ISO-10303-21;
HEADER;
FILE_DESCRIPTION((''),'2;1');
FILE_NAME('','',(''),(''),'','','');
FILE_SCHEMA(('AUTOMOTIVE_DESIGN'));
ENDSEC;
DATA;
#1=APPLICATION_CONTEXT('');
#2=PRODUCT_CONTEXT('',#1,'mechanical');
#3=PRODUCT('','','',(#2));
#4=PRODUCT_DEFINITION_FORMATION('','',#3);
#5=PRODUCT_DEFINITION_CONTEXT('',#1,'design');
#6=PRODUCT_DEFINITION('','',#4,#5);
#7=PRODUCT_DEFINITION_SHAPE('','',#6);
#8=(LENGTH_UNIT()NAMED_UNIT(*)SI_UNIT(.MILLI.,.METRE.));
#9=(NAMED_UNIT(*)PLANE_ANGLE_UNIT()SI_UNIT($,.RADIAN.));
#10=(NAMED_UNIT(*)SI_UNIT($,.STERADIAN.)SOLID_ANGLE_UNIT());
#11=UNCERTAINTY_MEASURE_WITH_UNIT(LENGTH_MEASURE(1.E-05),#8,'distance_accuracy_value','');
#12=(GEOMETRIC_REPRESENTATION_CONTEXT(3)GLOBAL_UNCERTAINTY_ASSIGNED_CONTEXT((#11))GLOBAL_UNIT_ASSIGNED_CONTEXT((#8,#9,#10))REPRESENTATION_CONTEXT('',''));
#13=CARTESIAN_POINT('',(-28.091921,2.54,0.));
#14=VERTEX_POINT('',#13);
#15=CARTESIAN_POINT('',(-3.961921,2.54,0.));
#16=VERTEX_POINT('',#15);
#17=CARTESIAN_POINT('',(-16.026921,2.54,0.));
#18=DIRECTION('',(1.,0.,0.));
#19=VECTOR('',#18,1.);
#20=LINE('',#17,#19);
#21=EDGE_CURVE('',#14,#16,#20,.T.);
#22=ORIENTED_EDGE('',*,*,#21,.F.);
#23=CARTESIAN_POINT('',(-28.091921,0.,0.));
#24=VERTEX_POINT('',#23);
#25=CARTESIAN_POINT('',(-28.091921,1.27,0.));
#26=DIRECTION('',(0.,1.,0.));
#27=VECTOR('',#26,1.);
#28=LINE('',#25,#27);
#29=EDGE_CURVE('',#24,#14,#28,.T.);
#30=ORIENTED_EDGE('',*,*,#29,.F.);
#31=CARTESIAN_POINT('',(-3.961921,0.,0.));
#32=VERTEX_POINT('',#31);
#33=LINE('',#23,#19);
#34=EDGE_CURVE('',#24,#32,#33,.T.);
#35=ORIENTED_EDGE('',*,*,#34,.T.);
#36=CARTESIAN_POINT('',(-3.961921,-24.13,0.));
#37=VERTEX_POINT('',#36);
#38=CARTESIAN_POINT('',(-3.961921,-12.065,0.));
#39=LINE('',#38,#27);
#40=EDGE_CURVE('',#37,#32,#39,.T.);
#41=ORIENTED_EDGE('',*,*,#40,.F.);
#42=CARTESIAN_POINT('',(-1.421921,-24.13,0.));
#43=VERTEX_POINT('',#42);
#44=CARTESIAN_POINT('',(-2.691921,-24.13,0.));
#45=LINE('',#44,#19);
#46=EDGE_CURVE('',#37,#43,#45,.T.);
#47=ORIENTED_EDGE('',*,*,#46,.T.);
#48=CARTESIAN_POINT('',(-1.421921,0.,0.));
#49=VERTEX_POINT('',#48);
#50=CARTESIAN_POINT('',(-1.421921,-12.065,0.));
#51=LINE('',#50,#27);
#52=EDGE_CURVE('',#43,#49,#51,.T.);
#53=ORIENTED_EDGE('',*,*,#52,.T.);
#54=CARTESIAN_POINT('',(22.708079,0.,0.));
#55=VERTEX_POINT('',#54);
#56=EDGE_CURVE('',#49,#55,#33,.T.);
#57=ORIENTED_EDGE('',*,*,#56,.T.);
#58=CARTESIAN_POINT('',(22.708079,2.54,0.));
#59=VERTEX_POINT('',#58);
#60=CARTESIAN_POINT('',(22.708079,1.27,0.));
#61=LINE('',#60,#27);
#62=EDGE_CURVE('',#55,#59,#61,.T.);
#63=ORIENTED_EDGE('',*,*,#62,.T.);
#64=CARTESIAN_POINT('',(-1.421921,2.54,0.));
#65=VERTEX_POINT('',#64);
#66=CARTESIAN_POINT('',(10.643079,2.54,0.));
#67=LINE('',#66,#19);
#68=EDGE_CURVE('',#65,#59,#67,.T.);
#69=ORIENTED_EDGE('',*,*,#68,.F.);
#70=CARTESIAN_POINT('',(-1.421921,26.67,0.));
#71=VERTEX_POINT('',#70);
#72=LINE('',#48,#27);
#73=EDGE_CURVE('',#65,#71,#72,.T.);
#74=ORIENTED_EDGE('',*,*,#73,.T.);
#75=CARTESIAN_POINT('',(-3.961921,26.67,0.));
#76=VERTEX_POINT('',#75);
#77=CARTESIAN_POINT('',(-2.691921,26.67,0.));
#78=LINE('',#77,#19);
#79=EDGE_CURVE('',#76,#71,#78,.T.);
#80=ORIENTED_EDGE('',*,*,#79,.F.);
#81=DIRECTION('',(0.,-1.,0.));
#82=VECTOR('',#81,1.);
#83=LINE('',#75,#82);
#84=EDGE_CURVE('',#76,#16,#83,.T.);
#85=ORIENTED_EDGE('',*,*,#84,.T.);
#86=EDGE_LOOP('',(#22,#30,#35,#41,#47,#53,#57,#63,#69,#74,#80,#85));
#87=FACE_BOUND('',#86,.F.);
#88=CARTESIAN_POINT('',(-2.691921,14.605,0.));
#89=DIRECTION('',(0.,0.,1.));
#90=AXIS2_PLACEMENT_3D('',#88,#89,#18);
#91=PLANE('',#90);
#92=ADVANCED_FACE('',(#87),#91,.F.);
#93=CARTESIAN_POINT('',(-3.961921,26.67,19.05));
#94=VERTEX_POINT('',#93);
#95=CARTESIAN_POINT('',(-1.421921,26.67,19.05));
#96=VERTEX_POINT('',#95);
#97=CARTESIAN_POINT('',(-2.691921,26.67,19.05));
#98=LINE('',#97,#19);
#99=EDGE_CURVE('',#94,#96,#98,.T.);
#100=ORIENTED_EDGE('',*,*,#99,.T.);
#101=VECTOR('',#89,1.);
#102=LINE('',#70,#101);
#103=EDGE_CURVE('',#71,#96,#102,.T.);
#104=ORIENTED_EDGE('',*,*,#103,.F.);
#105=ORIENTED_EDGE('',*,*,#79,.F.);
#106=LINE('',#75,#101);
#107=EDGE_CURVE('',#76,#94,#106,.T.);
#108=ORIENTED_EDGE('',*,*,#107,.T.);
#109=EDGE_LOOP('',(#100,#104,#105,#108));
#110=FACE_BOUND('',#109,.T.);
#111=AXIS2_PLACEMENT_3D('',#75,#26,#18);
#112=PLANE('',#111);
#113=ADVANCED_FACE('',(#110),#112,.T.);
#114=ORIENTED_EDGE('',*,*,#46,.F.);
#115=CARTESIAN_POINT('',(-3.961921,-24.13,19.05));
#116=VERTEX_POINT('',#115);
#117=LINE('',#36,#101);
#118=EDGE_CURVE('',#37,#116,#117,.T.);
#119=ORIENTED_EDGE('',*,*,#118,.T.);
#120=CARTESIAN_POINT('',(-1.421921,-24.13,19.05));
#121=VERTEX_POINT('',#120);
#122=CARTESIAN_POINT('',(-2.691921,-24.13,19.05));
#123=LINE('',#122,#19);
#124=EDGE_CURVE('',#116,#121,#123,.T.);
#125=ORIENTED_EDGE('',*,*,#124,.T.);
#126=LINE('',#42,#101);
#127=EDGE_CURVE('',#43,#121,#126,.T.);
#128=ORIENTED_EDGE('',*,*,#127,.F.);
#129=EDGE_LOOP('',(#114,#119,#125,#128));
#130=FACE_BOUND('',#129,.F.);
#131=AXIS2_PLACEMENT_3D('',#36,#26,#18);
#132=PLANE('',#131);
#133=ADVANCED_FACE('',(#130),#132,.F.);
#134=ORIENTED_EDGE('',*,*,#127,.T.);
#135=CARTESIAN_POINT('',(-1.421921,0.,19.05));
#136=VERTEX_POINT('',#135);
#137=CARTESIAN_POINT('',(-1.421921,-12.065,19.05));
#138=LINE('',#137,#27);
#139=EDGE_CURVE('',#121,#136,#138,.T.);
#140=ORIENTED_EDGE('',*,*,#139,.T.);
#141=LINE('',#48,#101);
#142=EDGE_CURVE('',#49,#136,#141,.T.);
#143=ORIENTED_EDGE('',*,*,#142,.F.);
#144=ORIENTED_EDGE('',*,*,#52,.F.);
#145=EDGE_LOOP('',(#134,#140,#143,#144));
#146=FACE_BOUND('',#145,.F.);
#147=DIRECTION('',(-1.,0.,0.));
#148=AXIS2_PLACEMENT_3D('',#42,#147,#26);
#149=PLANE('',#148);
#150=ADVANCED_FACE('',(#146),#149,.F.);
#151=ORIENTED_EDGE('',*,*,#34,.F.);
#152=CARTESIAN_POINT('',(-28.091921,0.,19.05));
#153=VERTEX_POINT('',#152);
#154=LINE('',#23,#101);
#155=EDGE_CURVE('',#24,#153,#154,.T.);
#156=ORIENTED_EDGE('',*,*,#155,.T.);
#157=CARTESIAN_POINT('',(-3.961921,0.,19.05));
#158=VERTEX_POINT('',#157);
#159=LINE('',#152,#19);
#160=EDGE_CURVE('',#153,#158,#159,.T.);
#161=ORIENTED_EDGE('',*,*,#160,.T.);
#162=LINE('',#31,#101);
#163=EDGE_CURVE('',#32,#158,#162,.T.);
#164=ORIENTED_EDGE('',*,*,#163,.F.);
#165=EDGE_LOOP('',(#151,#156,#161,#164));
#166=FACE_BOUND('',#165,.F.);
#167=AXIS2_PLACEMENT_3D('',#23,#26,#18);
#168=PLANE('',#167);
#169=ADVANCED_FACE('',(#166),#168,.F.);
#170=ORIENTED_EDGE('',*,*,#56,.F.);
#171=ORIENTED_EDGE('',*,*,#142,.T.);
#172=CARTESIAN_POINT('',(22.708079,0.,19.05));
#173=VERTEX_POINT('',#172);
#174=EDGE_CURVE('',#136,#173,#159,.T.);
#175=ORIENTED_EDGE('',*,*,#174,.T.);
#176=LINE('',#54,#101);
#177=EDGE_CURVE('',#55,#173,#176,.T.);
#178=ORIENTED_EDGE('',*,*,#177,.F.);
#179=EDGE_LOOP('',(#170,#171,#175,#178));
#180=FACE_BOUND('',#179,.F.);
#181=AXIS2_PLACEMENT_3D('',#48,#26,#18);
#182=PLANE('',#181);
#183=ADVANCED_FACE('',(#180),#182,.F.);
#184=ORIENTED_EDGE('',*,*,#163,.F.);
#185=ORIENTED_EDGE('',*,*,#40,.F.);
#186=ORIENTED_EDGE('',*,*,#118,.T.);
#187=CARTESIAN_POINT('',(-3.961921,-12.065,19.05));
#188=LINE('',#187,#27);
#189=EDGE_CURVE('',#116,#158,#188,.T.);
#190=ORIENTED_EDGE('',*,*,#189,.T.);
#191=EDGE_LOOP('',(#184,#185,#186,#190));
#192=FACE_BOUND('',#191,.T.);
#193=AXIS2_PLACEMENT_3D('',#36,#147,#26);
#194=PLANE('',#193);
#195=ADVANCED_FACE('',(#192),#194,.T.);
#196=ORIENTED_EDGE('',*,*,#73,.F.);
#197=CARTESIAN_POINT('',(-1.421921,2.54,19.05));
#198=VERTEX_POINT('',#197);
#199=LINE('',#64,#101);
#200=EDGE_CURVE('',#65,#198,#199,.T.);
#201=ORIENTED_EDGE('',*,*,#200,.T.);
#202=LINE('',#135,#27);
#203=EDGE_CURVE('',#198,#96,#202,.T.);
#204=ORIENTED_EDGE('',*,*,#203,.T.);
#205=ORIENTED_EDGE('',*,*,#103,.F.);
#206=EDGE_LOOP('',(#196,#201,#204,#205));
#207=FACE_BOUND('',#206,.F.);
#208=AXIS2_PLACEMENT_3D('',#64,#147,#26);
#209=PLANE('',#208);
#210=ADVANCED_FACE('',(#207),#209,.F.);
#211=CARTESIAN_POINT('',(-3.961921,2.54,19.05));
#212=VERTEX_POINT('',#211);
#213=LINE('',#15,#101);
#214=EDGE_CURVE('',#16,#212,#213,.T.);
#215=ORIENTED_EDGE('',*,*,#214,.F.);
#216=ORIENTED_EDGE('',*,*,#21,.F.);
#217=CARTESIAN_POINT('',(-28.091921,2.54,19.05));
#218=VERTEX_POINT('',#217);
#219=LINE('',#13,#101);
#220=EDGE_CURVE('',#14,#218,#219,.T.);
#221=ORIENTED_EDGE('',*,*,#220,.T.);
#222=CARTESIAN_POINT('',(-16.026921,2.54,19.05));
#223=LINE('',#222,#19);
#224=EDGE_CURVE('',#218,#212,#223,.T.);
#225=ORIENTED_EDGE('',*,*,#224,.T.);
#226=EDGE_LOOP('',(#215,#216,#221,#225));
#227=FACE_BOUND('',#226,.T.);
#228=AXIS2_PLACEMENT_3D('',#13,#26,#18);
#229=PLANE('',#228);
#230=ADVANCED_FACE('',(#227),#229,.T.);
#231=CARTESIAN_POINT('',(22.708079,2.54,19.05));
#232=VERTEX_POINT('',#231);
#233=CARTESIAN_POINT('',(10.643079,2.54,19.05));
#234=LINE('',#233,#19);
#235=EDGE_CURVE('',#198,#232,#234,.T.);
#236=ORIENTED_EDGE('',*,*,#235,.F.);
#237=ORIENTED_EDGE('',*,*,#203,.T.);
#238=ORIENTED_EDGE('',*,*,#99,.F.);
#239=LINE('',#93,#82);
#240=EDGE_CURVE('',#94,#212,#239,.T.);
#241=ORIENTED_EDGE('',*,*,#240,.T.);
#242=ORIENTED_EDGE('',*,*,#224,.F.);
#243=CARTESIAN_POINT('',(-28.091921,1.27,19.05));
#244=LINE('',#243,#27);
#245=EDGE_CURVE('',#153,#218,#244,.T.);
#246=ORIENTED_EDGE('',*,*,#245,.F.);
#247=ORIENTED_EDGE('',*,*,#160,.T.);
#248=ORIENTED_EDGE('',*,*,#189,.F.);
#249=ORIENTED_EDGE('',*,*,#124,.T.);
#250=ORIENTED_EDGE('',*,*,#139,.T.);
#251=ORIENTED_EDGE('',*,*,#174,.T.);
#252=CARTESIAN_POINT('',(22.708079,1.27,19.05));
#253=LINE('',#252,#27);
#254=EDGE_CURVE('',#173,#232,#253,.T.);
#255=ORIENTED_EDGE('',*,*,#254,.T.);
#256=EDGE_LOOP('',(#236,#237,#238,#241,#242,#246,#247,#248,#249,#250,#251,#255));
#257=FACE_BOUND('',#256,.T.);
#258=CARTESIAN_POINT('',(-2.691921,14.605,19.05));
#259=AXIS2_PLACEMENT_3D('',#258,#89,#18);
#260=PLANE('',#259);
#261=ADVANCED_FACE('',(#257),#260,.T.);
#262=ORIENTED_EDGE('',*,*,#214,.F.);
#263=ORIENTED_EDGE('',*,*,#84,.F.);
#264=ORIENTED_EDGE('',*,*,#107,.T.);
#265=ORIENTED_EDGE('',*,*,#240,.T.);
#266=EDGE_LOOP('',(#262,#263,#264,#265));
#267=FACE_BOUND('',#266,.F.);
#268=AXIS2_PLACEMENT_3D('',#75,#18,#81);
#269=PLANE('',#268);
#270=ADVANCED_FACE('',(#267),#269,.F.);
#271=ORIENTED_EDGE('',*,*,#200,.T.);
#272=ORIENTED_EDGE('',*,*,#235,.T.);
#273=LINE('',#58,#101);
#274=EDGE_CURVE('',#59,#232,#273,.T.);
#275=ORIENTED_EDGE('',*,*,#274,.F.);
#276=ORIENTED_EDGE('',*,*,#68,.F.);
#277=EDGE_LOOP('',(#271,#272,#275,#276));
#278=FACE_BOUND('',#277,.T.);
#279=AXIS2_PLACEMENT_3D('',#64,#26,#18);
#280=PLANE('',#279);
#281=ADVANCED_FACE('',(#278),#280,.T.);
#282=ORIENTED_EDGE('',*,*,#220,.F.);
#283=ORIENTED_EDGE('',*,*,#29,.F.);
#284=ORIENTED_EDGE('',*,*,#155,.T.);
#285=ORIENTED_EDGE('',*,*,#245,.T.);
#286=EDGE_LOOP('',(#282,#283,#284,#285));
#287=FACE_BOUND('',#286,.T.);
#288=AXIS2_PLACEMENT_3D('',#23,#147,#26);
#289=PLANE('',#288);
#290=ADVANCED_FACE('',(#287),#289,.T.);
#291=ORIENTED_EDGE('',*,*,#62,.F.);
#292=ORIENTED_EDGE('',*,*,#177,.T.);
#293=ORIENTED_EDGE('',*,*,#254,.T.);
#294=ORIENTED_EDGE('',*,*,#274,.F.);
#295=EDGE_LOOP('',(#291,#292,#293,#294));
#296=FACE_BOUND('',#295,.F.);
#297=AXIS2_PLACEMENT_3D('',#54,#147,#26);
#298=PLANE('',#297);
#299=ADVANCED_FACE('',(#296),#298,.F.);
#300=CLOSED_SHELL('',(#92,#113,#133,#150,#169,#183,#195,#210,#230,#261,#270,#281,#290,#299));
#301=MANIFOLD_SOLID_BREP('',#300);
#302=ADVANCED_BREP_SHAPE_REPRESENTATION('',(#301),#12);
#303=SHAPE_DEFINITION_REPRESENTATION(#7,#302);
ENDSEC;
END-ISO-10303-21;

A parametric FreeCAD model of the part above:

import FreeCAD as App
import Part
import Sketcher

V = App.Vector
Q = App.Units.Quantity


def add_polygon(sketch, points):
    """Adds a closed chain of lines whose ends are joined by coincident constraints."""
    first, n = sketch.GeometryCount, len(points)
    for a, b in zip(points, points[1:] + points[:1]):
        sketch.addGeometry(Part.LineSegment(App.Vector(*a, 0), App.Vector(*b, 0)), False)
    for i in range(n):
        sketch.addConstraint(Sketcher.Constraint("Coincident", first + i, 2, first + (i + 1) % n, 1))

doc = App.newDocument("Part")
body = doc.addObject("PartDesign::Body", "Body")

sketch1 = body.newObject("Sketcher::SketchObject", "Sketch")
sketch1.AttachmentSupport = (doc.getObject("XY_Plane"), [""])
sketch1.MapMode = "FlatFace"
add_polygon(sketch1, [(-4, 26.7), (-4, 2.5), (-28.1, 2.5), (-28.1, 0), (-4, 0), (-4, -24.1), (-1.4, -24.1), (-1.4, 0), (22.7, 0), (22.7, 2.5), (-1.4, 2.5), (-1.4, 26.7)])
sketch1.addConstraint([
    Sketcher.Constraint("Vertical", 0),
    Sketcher.Constraint("Horizontal", 1),
    Sketcher.Constraint("Vertical", 2),
    Sketcher.Constraint("Horizontal", 3),
    Sketcher.Constraint("Vertical", 4),
    Sketcher.Constraint("Horizontal", 5),
    Sketcher.Constraint("Vertical", 6),
    Sketcher.Constraint("Horizontal", 7),
    Sketcher.Constraint("Vertical", 8),
    Sketcher.Constraint("Horizontal", 9),
    Sketcher.Constraint("Vertical", 10),
    Sketcher.Constraint("Horizontal", 11),
    Sketcher.Constraint("PointOnObject", 2, 2, -1),
    Sketcher.Constraint("PointOnObject", 6, 2, -1),
    Sketcher.Constraint("Horizontal", 1, 2, 8, 2),
    Sketcher.Constraint("Vertical", 0, 2, 3, 2),
    Sketcher.Constraint("Vertical", 6, 2, 9, 2),
    Sketcher.Constraint("Equal", 3, 7),
    Sketcher.Constraint("Equal", 9, 0),
    Sketcher.Constraint("Equal", 11, 2),
    Sketcher.Constraint("Equal", 0, 4),
    Sketcher.Constraint("DistanceX", 5, 1, 5, 2, Q("0.1 in")),
    Sketcher.Constraint("DistanceX", 1, 2, 1, 1, Q("0.95 in")),
    Sketcher.Constraint("DistanceX", 0, 2, -1, 1, 3.961921),
])
pad1 = body.newObject("PartDesign::Pad", "Pad")
pad1.Profile = sketch1
pad1.Length = Q("0.75 in")

doc.recompute()
